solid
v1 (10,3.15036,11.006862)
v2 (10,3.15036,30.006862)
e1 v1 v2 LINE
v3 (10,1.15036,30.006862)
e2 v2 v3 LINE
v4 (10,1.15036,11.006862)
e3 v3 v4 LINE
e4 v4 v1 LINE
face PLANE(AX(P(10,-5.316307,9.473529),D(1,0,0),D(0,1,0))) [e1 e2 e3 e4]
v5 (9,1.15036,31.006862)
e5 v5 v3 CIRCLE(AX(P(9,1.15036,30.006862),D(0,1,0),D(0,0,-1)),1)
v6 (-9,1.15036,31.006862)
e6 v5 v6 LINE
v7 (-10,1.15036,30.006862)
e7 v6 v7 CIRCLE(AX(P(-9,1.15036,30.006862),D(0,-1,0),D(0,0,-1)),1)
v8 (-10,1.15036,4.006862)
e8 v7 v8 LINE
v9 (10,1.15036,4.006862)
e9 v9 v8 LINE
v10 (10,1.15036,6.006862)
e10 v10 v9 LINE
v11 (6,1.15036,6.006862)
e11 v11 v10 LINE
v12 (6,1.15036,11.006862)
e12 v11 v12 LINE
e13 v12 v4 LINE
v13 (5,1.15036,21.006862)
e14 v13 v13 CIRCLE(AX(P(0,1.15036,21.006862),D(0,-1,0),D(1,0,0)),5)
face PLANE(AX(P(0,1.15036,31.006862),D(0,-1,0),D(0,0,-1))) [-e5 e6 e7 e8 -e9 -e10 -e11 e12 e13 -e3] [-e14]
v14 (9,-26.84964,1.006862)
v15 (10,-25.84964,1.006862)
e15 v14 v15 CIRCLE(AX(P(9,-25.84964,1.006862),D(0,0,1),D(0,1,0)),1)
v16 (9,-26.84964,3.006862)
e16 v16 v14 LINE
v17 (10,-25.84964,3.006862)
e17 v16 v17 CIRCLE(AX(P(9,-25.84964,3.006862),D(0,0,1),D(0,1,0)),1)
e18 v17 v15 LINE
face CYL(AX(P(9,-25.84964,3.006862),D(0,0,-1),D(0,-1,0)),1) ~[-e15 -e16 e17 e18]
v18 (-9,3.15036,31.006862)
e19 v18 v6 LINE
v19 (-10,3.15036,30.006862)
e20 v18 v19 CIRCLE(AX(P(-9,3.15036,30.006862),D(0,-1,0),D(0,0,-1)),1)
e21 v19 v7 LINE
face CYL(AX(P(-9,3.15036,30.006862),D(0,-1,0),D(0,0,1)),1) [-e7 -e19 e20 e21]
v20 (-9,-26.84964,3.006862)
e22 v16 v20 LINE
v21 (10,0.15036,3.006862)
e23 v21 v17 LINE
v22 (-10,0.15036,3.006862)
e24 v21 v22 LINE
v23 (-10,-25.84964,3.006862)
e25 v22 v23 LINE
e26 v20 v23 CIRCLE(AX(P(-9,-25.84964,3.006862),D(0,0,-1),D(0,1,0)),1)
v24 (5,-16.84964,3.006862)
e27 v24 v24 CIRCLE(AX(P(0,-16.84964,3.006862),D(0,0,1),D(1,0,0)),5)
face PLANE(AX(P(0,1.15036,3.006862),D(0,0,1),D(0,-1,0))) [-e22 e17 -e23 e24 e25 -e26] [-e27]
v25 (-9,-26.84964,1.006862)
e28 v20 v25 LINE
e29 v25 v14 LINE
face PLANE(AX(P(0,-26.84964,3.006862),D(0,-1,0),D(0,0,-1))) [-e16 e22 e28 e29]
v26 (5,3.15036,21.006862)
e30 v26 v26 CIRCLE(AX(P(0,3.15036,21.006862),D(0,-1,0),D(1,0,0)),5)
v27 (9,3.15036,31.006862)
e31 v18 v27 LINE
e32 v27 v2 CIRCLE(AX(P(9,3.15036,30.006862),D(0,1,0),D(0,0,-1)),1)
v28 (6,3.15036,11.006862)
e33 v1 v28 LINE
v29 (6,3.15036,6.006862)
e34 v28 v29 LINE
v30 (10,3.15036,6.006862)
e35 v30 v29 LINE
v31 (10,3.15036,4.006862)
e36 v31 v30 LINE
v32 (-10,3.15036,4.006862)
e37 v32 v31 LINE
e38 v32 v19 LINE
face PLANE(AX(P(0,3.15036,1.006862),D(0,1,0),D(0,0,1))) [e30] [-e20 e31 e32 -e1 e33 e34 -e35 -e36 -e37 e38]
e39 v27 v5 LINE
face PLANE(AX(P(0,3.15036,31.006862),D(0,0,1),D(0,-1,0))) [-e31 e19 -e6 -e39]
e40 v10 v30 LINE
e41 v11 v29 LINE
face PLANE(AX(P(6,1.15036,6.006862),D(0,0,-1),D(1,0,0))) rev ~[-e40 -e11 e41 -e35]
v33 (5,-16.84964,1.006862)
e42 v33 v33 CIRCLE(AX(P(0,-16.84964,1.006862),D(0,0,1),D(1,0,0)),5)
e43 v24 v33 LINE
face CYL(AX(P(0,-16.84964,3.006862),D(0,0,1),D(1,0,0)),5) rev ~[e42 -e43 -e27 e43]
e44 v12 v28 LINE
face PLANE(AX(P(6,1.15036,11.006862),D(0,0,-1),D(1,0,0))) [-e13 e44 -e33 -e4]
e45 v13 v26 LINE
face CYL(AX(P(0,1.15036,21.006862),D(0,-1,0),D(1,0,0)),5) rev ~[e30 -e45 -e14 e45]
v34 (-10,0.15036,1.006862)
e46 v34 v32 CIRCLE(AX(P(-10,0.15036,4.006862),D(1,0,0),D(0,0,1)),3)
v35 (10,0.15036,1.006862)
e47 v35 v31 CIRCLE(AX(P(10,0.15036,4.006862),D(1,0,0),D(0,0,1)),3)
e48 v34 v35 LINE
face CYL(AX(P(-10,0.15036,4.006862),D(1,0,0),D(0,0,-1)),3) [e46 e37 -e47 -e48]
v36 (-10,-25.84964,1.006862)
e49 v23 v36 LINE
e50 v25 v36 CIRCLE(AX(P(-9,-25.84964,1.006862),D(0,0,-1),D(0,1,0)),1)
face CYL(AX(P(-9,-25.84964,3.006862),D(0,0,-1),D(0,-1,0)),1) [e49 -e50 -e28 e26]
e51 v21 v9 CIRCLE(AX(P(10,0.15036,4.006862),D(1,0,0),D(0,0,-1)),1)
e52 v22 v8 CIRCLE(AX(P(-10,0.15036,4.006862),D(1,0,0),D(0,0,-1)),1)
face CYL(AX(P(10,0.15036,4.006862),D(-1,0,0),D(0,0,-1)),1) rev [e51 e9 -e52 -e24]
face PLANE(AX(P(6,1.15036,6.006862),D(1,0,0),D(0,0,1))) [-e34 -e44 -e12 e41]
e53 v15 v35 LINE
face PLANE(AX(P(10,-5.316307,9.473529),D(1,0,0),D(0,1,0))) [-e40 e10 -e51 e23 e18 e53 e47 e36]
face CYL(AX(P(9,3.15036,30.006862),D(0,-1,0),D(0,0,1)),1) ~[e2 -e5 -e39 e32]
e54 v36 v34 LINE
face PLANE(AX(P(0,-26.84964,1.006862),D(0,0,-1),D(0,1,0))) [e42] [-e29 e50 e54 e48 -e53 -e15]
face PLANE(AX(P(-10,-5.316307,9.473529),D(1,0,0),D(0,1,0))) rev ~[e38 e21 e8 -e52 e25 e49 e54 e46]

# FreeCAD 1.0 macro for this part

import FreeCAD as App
import Part
import Sketcher

V = App.Vector
Q = App.Units.Quantity


def edges_at(feature, points):
    """Names of the edges that pass closest to the given points."""
    edges = feature.Shape.Edges
    near = lambda p: min(range(len(edges)), key=lambda i: edges[i].distToShape(Part.Vertex(*p))[0])
    return sorted({f"Edge{near(p) + 1}" for p in points})

doc = App.newDocument("Part")
params = doc.addObject("Spreadsheet::Sheet", "Params")
for row, (alias, value) in enumerate([
    ("sketch1_width", "30 mm"),
    ("sketch1_width2", "2 mm"),
    ("pad1_length", "20 mm"),
    ("fillet_radius", "1 mm"),
    ("sketch2_diameter", "10 mm"),
    ("pocket1_length", "25 mm"),
    ("sketch3_diameter", "10 mm"),
    ("pocket2_length", "25 mm"),
    ("sketch4_width", "4 mm"),
    ("sketch4_height", "5 mm"),
    ("pocket3_length", "25 mm"),
    ("fillet2_radius", "3 mm"),
], start=1):
    params.set(f"A{row}", alias)
    params.set(f"B{row}", "=" + value)
    params.setAlias(f"B{row}", alias)

body = doc.addObject("PartDesign::Body", "Body")

sketch1 = doc.addObject("Sketcher::SketchObject", "Sketch")
body.addObject(sketch1)
sketch1.AttachmentSupport = (doc.YZ_Plane, [""])
sketch1.MapMode = "FlatFace"
sketch1.addGeometry(Part.LineSegment(V(-26.8, 3, 0), V(-26.8, 1, 0)), False)
sketch1.addGeometry(Part.LineSegment(V(-26.8, 1, 0), V(3.2, 1, 0)), False)
sketch1.addGeometry(Part.LineSegment(V(3.2, 1, 0), V(3.2, 31, 0)), False)
sketch1.addGeometry(Part.LineSegment(V(3.2, 31, 0), V(1.2, 31, 0)), False)
sketch1.addGeometry(Part.LineSegment(V(1.2, 31, 0), V(1.2, 3, 0)), False)
sketch1.addGeometry(Part.LineSegment(V(1.2, 3, 0), V(-26.8, 3, 0)), False)
sketch1.addConstraint(Sketcher.Constraint("Coincident", 0, 2, 1, 1))
sketch1.addConstraint(Sketcher.Constraint("Coincident", 1, 2, 2, 1))
sketch1.addConstraint(Sketcher.Constraint("Coincident", 2, 2, 3, 1))
sketch1.addConstraint(Sketcher.Constraint("Coincident", 3, 2, 4, 1))
sketch1.addConstraint(Sketcher.Constraint("Coincident", 4, 2, 5, 1))
sketch1.addConstraint(Sketcher.Constraint("Coincident", 5, 2, 0, 1))
sketch1.addConstraint(Sketcher.Constraint("Vertical", 0))
sketch1.addConstraint(Sketcher.Constraint("Horizontal", 1))
sketch1.addConstraint(Sketcher.Constraint("Vertical", 2))
sketch1.addConstraint(Sketcher.Constraint("Horizontal", 3))
sketch1.addConstraint(Sketcher.Constraint("Vertical", 4))
sketch1.addConstraint(Sketcher.Constraint("Horizontal", 5))
sketch1.addConstraint(Sketcher.Constraint("Equal", 3, 0))
sketch1.addConstraint(Sketcher.Constraint("Equal", 1, 2))
sketch1.addConstraint(Sketcher.Constraint("DistanceX", 1, 1, 1, 2, Q("30 mm")))
sketch1.addConstraint(Sketcher.Constraint("DistanceX", 3, 2, 3, 1, Q("2 mm")))
sketch1.addConstraint(Sketcher.Constraint("DistanceX", 0, 2, -1, 1, Q("26.84964 mm")))
sketch1.addConstraint(Sketcher.Constraint("DistanceY", -1, 1, 0, 2, Q("1.006862 mm")))
sketch1.setExpression("Constraints[14]", "Params.sketch1_width")
sketch1.setExpression("Constraints[15]", "Params.sketch1_width2")
pad1 = doc.addObject("PartDesign::Pad", "Pad")
body.addObject(pad1)
pad1.Profile = sketch1
pad1.setExpression("Length", "Params.pad1_length")
pad1.Midplane = True
doc.recompute()

fillet = doc.addObject("PartDesign::Fillet", "Fillet")
body.addObject(fillet)
fillet.Base = (pad1, edges_at(pad1, [
    (0, 1.15, 3.007),
    (10, 2.15, 31.007),
    (-10, 2.15, 31.007),
    (10, -26.85, 2.007),
    (-10, -26.85, 2.007),
]))
fillet.setExpression("Radius", "Params.fillet_radius")

sketch2 = doc.addObject("Sketcher::SketchObject", "Sketch001")
body.addObject(sketch2)
sketch2.AttachmentSupport = (doc.XY_Plane, [""])
sketch2.MapMode = "FlatFace"
sketch2.AttachmentOffset = App.Placement(V(0, 0, 3.006862), App.Rotation())
sketch2.addGeometry(Part.Circle(V(0, -17, 0), V(0, 0, 1), 5), False)
sketch2.addConstraint(Sketcher.Constraint("PointOnObject", 0, 3, -2))
sketch2.addConstraint(Sketcher.Constraint("Diameter", 0, Q("10 mm")))
sketch2.addConstraint(Sketcher.Constraint("DistanceY", 0, 3, -1, 1, Q("16.84964 mm")))
sketch2.setExpression("Constraints[1]", "Params.sketch2_diameter")
pocket1 = doc.addObject("PartDesign::Pocket", "Pocket")
body.addObject(pocket1)
pocket1.Profile = sketch2
pocket1.setExpression("Length", "Params.pocket1_length")

sketch3 = doc.addObject("Sketcher::SketchObject", "Sketch002")
body.addObject(sketch3)
sketch3.AttachmentSupport = (doc.XZ_Plane, [""])
sketch3.MapMode = "FlatFace"
sketch3.AttachmentOffset = App.Placement(V(0, 0, -1.15036), App.Rotation())
sketch3.addGeometry(Part.Circle(V(0, 21, 0), V(0, 0, 1), 5), False)
sketch3.addConstraint(Sketcher.Constraint("PointOnObject", 0, 3, -2))
sketch3.addConstraint(Sketcher.Constraint("Diameter", 0, Q("10 mm")))
sketch3.addConstraint(Sketcher.Constraint("DistanceY", -1, 1, 0, 3, Q("21.006862 mm")))
sketch3.setExpression("Constraints[1]", "Params.sketch3_diameter")
pocket2 = doc.addObject("PartDesign::Pocket", "Pocket001")
body.addObject(pocket2)
pocket2.Profile = sketch3
pocket2.setExpression("Length", "Params.pocket2_length")

sketch4 = doc.addObject("Sketcher::SketchObject", "Sketch003")
body.addObject(sketch4)
sketch4.AttachmentSupport = (doc.XZ_Plane, [""])
sketch4.MapMode = "FlatFace"
sketch4.AttachmentOffset = App.Placement(V(0, 0, -1.15036), App.Rotation())
sketch4.addGeometry(Part.LineSegment(V(6, 11, 0), V(6, 6, 0)), False)
sketch4.addGeometry(Part.LineSegment(V(6, 6, 0), V(10, 6, 0)), False)
sketch4.addGeometry(Part.LineSegment(V(10, 6, 0), V(10, 11, 0)), False)
sketch4.addGeometry(Part.LineSegment(V(10, 11, 0), V(6, 11, 0)), False)
sketch4.addConstraint(Sketcher.Constraint("Coincident", 0, 2, 1, 1))
sketch4.addConstraint(Sketcher.Constraint("Coincident", 1, 2, 2, 1))
sketch4.addConstraint(Sketcher.Constraint("Coincident", 2, 2, 3, 1))
sketch4.addConstraint(Sketcher.Constraint("Coincident", 3, 2, 0, 1))
sketch4.addConstraint(Sketcher.Constraint("Vertical", 0))
sketch4.addConstraint(Sketcher.Constraint("Horizontal", 1))
sketch4.addConstraint(Sketcher.Constraint("Vertical", 2))
sketch4.addConstraint(Sketcher.Constraint("Horizontal", 3))
sketch4.addConstraint(Sketcher.Constraint("DistanceX", 1, 1, 1, 2, Q("4 mm")))
sketch4.addConstraint(Sketcher.Constraint("DistanceY", 0, 2, 0, 1, Q("5 mm")))
sketch4.addConstraint(Sketcher.Constraint("DistanceX", -1, 1, 0, 2, Q("6 mm")))
sketch4.addConstraint(Sketcher.Constraint("DistanceY", -1, 1, 0, 2, Q("6.006862 mm")))
sketch4.setExpression("Constraints[8]", "Params.sketch4_width")
sketch4.setExpression("Constraints[9]", "Params.sketch4_height")
pocket3 = doc.addObject("PartDesign::Pocket", "Pocket002")
body.addObject(pocket3)
pocket3.Profile = sketch4
pocket3.setExpression("Length", "Params.pocket3_length")
doc.recompute()

fillet2 = doc.addObject("PartDesign::Fillet", "Fillet001")
body.addObject(fillet2)
fillet2.Base = (pocket3, edges_at(pocket3, [(0, 3.15, 1.007)]))
fillet2.setExpression("Radius", "Params.fillet2_radius")

doc.recompute()
